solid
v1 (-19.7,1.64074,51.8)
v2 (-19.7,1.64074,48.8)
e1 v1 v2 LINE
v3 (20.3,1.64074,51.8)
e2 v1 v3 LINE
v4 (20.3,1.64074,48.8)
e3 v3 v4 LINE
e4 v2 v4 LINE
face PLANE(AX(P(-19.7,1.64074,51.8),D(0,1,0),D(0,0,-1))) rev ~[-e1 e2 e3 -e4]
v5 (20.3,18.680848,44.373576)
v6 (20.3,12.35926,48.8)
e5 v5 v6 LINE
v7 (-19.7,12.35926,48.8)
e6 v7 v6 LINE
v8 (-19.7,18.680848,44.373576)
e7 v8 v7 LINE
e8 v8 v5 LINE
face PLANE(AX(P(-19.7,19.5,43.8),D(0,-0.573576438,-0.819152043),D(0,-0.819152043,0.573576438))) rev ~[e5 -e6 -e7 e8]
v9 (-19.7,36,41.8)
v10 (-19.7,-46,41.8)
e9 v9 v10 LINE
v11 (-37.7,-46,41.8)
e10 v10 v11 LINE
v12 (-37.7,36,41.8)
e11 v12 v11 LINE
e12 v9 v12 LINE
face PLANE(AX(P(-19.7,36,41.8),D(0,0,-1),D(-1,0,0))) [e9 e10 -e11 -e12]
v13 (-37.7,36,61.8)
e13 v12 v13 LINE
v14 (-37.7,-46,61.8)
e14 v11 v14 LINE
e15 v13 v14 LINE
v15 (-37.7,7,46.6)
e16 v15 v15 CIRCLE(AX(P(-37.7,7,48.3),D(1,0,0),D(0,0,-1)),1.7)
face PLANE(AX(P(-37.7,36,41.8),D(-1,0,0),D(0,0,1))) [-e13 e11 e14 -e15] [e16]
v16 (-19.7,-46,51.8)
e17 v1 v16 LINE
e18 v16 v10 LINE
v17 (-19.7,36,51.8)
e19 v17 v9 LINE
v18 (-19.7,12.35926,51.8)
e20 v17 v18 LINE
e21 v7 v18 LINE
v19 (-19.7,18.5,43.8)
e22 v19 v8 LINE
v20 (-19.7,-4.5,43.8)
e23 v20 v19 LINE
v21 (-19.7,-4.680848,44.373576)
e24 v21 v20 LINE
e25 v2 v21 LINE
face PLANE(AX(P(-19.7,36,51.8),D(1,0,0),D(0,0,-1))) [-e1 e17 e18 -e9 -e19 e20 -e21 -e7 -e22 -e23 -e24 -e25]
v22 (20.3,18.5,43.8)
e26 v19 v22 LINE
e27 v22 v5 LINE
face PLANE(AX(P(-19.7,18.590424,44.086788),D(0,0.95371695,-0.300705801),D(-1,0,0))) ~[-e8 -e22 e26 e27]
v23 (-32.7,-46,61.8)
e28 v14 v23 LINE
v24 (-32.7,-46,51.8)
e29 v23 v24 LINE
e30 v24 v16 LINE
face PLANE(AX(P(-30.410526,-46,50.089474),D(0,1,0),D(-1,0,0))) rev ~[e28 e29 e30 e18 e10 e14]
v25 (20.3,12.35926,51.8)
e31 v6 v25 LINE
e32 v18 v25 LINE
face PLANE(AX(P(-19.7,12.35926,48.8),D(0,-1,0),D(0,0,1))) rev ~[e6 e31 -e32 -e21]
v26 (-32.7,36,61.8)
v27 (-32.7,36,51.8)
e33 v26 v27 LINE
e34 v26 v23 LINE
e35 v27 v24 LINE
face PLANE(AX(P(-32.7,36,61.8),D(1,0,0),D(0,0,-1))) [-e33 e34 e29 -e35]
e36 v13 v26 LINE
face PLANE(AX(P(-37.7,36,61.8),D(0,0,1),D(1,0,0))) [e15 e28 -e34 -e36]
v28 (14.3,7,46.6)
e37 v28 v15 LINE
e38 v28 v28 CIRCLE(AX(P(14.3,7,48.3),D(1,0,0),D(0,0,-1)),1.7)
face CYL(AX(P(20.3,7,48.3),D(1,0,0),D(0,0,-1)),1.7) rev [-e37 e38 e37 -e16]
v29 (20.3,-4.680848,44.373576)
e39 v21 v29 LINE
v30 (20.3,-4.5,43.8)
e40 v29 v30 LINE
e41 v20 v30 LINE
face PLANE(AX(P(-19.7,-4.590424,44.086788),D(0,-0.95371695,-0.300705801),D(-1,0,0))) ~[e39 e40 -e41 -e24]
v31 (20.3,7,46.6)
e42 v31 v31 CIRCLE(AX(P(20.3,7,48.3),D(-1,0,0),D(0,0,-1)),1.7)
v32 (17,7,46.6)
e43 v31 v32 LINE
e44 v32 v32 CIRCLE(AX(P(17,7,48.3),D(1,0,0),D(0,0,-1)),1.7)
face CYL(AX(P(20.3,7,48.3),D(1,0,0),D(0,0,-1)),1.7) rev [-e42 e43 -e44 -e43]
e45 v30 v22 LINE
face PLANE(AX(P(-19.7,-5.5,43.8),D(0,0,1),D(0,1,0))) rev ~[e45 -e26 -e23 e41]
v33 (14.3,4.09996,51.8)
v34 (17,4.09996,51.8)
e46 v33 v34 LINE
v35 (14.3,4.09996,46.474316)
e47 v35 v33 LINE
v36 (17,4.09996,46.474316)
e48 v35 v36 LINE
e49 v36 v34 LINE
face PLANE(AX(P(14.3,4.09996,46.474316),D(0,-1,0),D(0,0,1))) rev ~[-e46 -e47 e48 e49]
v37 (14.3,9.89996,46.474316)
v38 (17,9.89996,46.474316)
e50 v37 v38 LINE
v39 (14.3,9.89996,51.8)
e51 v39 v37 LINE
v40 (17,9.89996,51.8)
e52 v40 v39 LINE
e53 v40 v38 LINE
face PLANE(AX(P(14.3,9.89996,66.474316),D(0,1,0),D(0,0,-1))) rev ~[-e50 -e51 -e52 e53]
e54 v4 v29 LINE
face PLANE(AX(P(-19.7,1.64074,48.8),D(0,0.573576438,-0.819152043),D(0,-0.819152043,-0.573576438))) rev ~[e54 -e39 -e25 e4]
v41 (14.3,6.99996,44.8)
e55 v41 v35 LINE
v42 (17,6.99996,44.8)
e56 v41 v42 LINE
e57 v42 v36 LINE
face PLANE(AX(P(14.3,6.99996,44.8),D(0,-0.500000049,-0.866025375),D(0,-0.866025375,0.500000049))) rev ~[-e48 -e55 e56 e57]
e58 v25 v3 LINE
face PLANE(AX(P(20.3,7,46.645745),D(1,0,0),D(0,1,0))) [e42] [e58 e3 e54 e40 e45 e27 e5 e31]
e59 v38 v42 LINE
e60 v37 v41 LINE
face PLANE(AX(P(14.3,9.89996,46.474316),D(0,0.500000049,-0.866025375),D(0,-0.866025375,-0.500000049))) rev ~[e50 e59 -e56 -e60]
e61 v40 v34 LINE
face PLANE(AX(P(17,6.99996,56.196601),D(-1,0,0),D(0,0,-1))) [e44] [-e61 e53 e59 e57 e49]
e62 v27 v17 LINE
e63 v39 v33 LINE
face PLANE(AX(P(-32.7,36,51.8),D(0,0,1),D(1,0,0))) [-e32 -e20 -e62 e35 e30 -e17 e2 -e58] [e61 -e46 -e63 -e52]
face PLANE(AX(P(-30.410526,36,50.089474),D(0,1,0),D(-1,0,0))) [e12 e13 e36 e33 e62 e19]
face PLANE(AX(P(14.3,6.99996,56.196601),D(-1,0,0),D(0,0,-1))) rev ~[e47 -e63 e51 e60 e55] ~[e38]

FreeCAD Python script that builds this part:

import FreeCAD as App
import Part
import Sketcher
from FreeCAD import Vector
Q = App.Units.Quantity


def edges_at(feature, points):
    """Names of the edges that pass closest to the given points."""
    edges = feature.Shape.Edges
    near = lambda p: min(range(len(edges)), key=lambda i: edges[i].distToShape(Part.Vertex(*p))[0])
    return sorted({f"Edge{near(p) + 1}" for p in points})


def add_polygon(sketch, points):
    """Adds a closed chain of lines whose ends are joined by coincident constraints."""
    first, n = sketch.GeometryCount, len(points)
    for a, b in zip(points, points[1:] + points[:1]):
        sketch.addGeometry(Part.LineSegment(App.Vector(*a, 0), App.Vector(*b, 0)), False)
    for i in range(n):
        sketch.addConstraint(Sketcher.Constraint("Coincident", first + i, 2, first + (i + 1) % n, 1))

doc = App.newDocument("Part")
body = doc.addObject("PartDesign::Body", "Body")

sketch1 = doc.addObject("Sketcher::SketchObject", "Sketch")
body.addObject(sketch1)
sketch1.AttachmentSupport = (doc.YZ_Plane, [""])
sketch1.MapMode = "FlatFace"
sketch1.AttachmentOffset = App.Placement(Vector(0, 0, 65), App.Rotation())
add_polygon(sketch1, [(32.9, 3.2), (30, 1.5), (27.1, 3.2), (27.1, 23.2), (32.9, 23.2)])
sketch1.addConstraint([
    Sketcher.Constraint("Vertical", 2),
    Sketcher.Constraint("Horizontal", 3),
    Sketcher.Constraint("Vertical", 4),
    Sketcher.Constraint("Horizontal", 1, 2, 4, 2),
    Sketcher.Constraint("Equal", 0, 1),
    Sketcher.Constraint("DistanceY", 2, 1, 2, 2, Q("20 mm")),
    Sketcher.Constraint("Angle", 0, Q("-149.999997 deg")),
    Sketcher.Constraint("DistanceX", 3, 1, 3, 2, Q("5.8 mm")),
    Sketcher.Constraint("DistanceX", -1, 1, 0, 2, Q("30 mm")),
    Sketcher.Constraint("DistanceY", -1, 1, 0, 2, Q("1.5 mm")),
])
pad1 = doc.addObject("PartDesign::Pad", "Pad")
body.addObject(pad1)
pad1.Profile = sketch1
pad1.Length = 2.7
pad1.Reversed = True
body2 = doc.addObject("PartDesign::Body", "Body001")
doc.recompute()

body.Placement = App.Placement(Vector(-117, -0.99996, 1.5), App.Rotation(Vector(0, 0, 1), 0))
boolean = doc.addObject("PartDesign::Boolean", "Boolean")
body2.addObject(boolean)
boolean.Type = "Fuse"
boolean.addObjects([body])
body3 = doc.addObject("PartDesign::Body", "Body002")

sketch2 = doc.addObject("Sketcher::SketchObject", "Sketch001")
body3.addObject(sketch2)
sketch2.AttachmentSupport = (doc.getObject("XY_Plane002"), [""])
sketch2.MapMode = "FlatFace"
sketch2.addGeometry(Part.Circle(Vector(0, 0, 0), Vector(0, 0, 1), 1.7), False)
sketch2.addConstraint([
    Sketcher.Constraint("Coincident", 0, 3, -1, 1),
    Sketcher.Constraint("Diameter", 0, Q("3.4 mm")),
])
pad2 = doc.addObject("PartDesign::Pad", "Pad001")
body3.addObject(pad2)
pad2.Profile = sketch2
pad2.Length = 100
body4 = doc.addObject("PartDesign::Body", "Body003")
doc.recompute()

body3.Placement = App.Placement(Vector(0, 0, 0), App.Rotation(Vector(0, 1, 0), 90))
boolean2 = doc.addObject("PartDesign::Boolean", "Boolean001")
body4.addObject(boolean2)
boolean2.Type = "Fuse"
boolean2.addObjects([body3])
body5 = doc.addObject("PartDesign::Body", "Body004")
doc.recompute()

body4.Placement = App.Placement(Vector(-58, 29, 6.5), App.Rotation(Vector(0, 0, 1), 0))
boolean3 = doc.addObject("PartDesign::Boolean", "Boolean002")
body5.addObject(boolean3)
boolean3.Type = "Fuse"
boolean3.addObjects([body4])
doc.recompute()

boolean4 = doc.addObject("PartDesign::Boolean", "Boolean003")
body5.addObject(boolean4)
boolean4.Type = "Fuse"
boolean4.addObjects([body2])
body6 = doc.addObject("PartDesign::Body", "Body005")

sketch3 = doc.addObject("Sketcher::SketchObject", "Sketch002")
body6.addObject(sketch3)
sketch3.AttachmentSupport = (doc.getObject("XZ_Plane005"), [""])
sketch3.MapMode = "FlatFace"
add_polygon(sketch3, [(0, 20), (0, 0), (-18, 0), (-18, 10), (-5, 10), (-5, 20)])
sketch3.addConstraint([
    Sketcher.Constraint("Vertical", 0),
    Sketcher.Constraint("Horizontal", 1),
    Sketcher.Constraint("Vertical", 2),
    Sketcher.Constraint("Horizontal", 3),
    Sketcher.Constraint("Vertical", 4),
    Sketcher.Constraint("Horizontal", 5),
    Sketcher.Constraint("Coincident", 0, 2, -1, 1),
    Sketcher.Constraint("Equal", 2, 4),
    Sketcher.Constraint("DistanceX", 1, 2, 1, 1, Q("18 mm")),
    Sketcher.Constraint("DistanceX", 3, 1, 3, 2, Q("13 mm")),
    Sketcher.Constraint("DistanceY", 0, 2, 0, 1, Q("20 mm")),
])
pad3 = doc.addObject("PartDesign::Pad", "Pad002")
body6.addObject(pad3)
pad3.Profile = sketch3
pad3.Length = 82
pad3.Reversed = True
body7 = doc.addObject("PartDesign::Body", "Body006")

sketch4 = doc.addObject("Sketcher::SketchObject", "Sketch003")
body7.addObject(sketch4)
sketch4.AttachmentSupport = (doc.getObject("YZ_Plane006"), [""])
sketch4.MapMode = "FlatFace"
sketch4.AttachmentOffset = App.Placement(Vector(0, 0, -18), App.Rotation())
add_polygon(sketch4, [(23.6, 7), (16.5, 2), (41.5, 2), (34.4, 7), (34.4, 10), (23.6, 10)])
sketch4.addConstraint([
    Sketcher.Constraint("Horizontal", 1),
    Sketcher.Constraint("Vertical", 3),
    Sketcher.Constraint("Horizontal", 4),
    Sketcher.Constraint("Vertical", 5),
    Sketcher.Constraint("Horizontal", 2, 2, 5, 2),
    Sketcher.Constraint("Equal", 0, 2),
    Sketcher.Constraint("DistanceX", 1, 1, 1, 2, Q("25 mm")),
    Sketcher.Constraint("DistanceY", 3, 1, 3, 2, Q("3 mm")),
    Sketcher.Constraint("Angle", 0, Q("-145 deg")),
    Sketcher.Constraint("DistanceY", -1, 1, 0, 2, Q("2 mm")),
    Sketcher.Constraint("DistanceY", -1, 1, 2, 2, Q("7 mm")),
    Sketcher.Constraint("DistanceX", -1, 1, 0, 2, Q("16.5 mm")),
])
pad4 = doc.addObject("PartDesign::Pad", "Pad003")
body7.addObject(pad4)
pad4.Profile = sketch4
pad4.Length = 40
pad4.Reversed = True
doc.recompute()

boolean5 = doc.addObject("PartDesign::Boolean", "Boolean004")
body7.addObject(boolean5)
boolean5.Type = "Fuse"
boolean5.addObjects([body6])
doc.recompute()

boolean6 = doc.addObject("PartDesign::Boolean", "Boolean005")
body7.addObject(boolean6)
boolean6.Type = "Cut"
boolean6.addObjects([body5])
doc.recompute()

chamfer = doc.addObject("PartDesign::Chamfer", "Chamfer")
body7.addObject(chamfer)
chamfer.Base = (boolean6, edges_at(boolean6, [(-38, 16.5, 2), (-38, 41.5, 2)]))
chamfer.Size = 1
body8 = doc.addObject("PartDesign::Body", "Body007")
doc.recompute()

body7.Placement = App.Placement(Vector(-37.7, 79, 44), App.Rotation(Vector(0, 0, 1), 180))
boolean7 = doc.addObject("PartDesign::Boolean", "Boolean006")
body8.addObject(boolean7)
boolean7.Type = "Fuse"
boolean7.addObjects([body7])
body9 = doc.addObject("PartDesign::Body", "Body008")
doc.recompute()

body8.Placement = App.Placement(Vector(0, -43, -2.2), App.Rotation(Vector(0, 0, 1), 0))
boolean8 = doc.addObject("PartDesign::Boolean", "Boolean007")
body9.addObject(boolean8)
boolean8.Type = "Fuse"
boolean8.addObjects([body8])

doc.recompute()
